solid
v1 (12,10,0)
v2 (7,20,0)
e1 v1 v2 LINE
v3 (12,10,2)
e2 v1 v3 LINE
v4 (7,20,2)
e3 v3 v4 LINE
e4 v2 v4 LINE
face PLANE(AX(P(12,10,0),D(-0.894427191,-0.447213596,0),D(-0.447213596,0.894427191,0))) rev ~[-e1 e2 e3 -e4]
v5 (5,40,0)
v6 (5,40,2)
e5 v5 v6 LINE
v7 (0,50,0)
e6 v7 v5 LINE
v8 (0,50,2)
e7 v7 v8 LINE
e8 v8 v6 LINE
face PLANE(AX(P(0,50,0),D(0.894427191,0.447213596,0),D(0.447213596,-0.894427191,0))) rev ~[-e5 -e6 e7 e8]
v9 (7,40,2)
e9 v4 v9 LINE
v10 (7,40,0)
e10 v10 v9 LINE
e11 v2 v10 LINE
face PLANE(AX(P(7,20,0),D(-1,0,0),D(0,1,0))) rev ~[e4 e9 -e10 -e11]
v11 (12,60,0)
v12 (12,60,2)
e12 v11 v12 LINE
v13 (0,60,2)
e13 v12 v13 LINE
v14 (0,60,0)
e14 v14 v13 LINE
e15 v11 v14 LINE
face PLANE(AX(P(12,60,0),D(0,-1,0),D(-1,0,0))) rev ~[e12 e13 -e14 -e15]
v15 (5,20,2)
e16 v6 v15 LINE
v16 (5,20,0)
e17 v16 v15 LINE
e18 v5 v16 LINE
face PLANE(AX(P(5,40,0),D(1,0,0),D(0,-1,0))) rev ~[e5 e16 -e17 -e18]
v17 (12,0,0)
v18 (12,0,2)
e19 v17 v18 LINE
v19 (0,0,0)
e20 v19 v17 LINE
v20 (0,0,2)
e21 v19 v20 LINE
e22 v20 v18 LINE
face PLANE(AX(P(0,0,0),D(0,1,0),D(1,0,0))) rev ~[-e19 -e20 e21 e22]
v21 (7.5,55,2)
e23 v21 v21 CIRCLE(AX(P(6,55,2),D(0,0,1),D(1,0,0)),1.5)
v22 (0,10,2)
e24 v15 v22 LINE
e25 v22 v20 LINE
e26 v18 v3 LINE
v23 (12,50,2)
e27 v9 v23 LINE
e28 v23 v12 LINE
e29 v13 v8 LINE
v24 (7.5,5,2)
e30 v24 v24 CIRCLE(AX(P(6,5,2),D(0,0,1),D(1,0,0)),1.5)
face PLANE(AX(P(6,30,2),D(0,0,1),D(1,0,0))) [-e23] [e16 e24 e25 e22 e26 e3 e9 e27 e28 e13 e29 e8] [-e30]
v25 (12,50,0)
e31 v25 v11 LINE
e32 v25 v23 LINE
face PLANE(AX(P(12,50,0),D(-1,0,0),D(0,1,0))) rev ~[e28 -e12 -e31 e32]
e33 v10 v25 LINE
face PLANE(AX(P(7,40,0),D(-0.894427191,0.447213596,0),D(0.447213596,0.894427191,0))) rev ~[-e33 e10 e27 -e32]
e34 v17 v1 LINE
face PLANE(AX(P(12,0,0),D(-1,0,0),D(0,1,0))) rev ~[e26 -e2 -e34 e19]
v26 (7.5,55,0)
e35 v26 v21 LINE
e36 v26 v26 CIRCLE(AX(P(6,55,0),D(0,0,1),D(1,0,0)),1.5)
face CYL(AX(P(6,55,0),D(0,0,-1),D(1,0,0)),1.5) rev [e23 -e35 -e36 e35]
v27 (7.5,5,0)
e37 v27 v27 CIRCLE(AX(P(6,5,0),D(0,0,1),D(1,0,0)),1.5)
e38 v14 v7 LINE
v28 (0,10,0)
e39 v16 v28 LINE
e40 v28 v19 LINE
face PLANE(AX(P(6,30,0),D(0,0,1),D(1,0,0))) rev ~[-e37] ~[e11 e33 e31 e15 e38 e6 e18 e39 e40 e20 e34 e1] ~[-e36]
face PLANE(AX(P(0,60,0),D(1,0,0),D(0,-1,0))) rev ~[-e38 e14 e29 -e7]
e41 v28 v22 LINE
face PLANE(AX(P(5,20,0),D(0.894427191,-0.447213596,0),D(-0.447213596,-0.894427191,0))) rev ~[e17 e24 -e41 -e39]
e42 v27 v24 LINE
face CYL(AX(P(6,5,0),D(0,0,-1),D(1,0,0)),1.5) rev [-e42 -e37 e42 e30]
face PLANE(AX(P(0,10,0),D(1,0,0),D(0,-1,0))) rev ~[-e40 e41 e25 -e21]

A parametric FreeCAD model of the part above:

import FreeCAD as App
import Part
import Sketcher


def add_polygon(sketch, points):
    """Adds a closed chain of lines whose ends are joined by coincident constraints."""
    first, n = sketch.GeometryCount, len(points)
    for a, b in zip(points, points[1:] + points[:1]):
        sketch.addGeometry(Part.LineSegment(App.Vector(*a, 0), App.Vector(*b, 0)), False)
    for i in range(n):
        sketch.addConstraint(Sketcher.Constraint("Coincident", first + i, 2, first + (i + 1) % n, 1))

doc = App.newDocument("Part")
params = doc.addObject("Spreadsheet::Sheet", "Params")
for row, (alias, value) in enumerate([
    ("sketch1_diameter", "3 mm"),
    ("sketch1_width", "12 mm"),
    ("sketch1_height", "10 mm"),
    ("sketch1_height2", "20 mm"),
    ("pad1_length", "2 mm"),
], start=1):
    params.set(f"A{row}", alias)
    params.set(f"B{row}", "=" + value)
    params.setAlias(f"B{row}", alias)

body = doc.addObject("PartDesign::Body", "Body")

# Sketch on XY plane
sketch1 = doc.addObject("Sketcher::SketchObject", "Sketch")
body.addObject(sketch1)
sketch1.AttachmentSupport = (doc.XY_Plane, [""])
sketch1.MapMode = "FlatFace"
add_polygon(sketch1, [(0, 10), (0, 0), (12, 0), (12, 10), (7, 20), (7, 40), (12, 50), (12, 60), (0, 60), (0, 50), (5, 40), (5, 20)])  # lines 0-11
sketch1.addGeometry(Part.Circle(App.Vector(6, 5, 0), App.Vector(0, 0, 1), 1.5), False)  # 12
sketch1.addGeometry(Part.Circle(App.Vector(6, 55, 0), App.Vector(0, 0, 1), 1.5), False)  # 13
sketch1.addConstraint([
    Sketcher.Constraint("Vertical", 0),
    Sketcher.Constraint("Horizontal", 1),
    Sketcher.Constraint("Vertical", 2),
    Sketcher.Constraint("Vertical", 4),
    Sketcher.Constraint("Vertical", 6),
    Sketcher.Constraint("Horizontal", 7),
    Sketcher.Constraint("Vertical", 8),
    Sketcher.Constraint("Vertical", 10),
    Sketcher.Constraint("Coincident", 0, 2, -1, 1),
    Sketcher.Constraint("Equal", 12, 13),
    Sketcher.Constraint("PointOnObject", 7, 2, -2),
    Sketcher.Constraint("Parallel", 3, 9),
    Sketcher.Constraint("Parallel", 5, 11),
    Sketcher.Constraint("Horizontal", 5, 2, 8, 2),
    Sketcher.Constraint("Horizontal", 4, 2, 9, 2),
    Sketcher.Constraint("Horizontal", 3, 2, 10, 2),
    Sketcher.Constraint("Horizontal", 2, 2, 11, 2),
    Sketcher.Constraint("Vertical", 12, 3, 13, 3),
    Sketcher.Constraint("Vertical", 2, 2, 5, 2),
    Sketcher.Constraint("Equal", 2, 6),
    Sketcher.Constraint("Diameter", 12, 3.0),
    Sketcher.Constraint("DistanceX", 1, 1, 1, 2, 12.0),
    Sketcher.Constraint("DistanceY", 0, 2, 0, 1, 10.0),
    Sketcher.Constraint("DistanceY", 4, 1, 4, 2, 20.0),
    Sketcher.Constraint("DistanceX", -1, 1, 12, 3, 6.0),
    Sketcher.Constraint("DistanceY", -1, 1, 12, 3, 5.0),
    Sketcher.Constraint("DistanceY", -1, 1, 13, 3, 55.0),
    Sketcher.Constraint("DistanceX", -1, 1, 3, 2, 7.0),
    Sketcher.Constraint("DistanceY", -1, 1, 3, 2, 20.0),
])
sketch1.setExpression("Constraints[32]", "Params.sketch1_diameter")
sketch1.setExpression("Constraints[33]", "Params.sketch1_width")
sketch1.setExpression("Constraints[34]", "Params.sketch1_height")
sketch1.setExpression("Constraints[35]", "Params.sketch1_height2")
pad1 = doc.addObject("PartDesign::Pad", "Pad")
body.addObject(pad1)
pad1.Profile = sketch1
pad1.setExpression("Length", "Params.pad1_length")

doc.recompute()
